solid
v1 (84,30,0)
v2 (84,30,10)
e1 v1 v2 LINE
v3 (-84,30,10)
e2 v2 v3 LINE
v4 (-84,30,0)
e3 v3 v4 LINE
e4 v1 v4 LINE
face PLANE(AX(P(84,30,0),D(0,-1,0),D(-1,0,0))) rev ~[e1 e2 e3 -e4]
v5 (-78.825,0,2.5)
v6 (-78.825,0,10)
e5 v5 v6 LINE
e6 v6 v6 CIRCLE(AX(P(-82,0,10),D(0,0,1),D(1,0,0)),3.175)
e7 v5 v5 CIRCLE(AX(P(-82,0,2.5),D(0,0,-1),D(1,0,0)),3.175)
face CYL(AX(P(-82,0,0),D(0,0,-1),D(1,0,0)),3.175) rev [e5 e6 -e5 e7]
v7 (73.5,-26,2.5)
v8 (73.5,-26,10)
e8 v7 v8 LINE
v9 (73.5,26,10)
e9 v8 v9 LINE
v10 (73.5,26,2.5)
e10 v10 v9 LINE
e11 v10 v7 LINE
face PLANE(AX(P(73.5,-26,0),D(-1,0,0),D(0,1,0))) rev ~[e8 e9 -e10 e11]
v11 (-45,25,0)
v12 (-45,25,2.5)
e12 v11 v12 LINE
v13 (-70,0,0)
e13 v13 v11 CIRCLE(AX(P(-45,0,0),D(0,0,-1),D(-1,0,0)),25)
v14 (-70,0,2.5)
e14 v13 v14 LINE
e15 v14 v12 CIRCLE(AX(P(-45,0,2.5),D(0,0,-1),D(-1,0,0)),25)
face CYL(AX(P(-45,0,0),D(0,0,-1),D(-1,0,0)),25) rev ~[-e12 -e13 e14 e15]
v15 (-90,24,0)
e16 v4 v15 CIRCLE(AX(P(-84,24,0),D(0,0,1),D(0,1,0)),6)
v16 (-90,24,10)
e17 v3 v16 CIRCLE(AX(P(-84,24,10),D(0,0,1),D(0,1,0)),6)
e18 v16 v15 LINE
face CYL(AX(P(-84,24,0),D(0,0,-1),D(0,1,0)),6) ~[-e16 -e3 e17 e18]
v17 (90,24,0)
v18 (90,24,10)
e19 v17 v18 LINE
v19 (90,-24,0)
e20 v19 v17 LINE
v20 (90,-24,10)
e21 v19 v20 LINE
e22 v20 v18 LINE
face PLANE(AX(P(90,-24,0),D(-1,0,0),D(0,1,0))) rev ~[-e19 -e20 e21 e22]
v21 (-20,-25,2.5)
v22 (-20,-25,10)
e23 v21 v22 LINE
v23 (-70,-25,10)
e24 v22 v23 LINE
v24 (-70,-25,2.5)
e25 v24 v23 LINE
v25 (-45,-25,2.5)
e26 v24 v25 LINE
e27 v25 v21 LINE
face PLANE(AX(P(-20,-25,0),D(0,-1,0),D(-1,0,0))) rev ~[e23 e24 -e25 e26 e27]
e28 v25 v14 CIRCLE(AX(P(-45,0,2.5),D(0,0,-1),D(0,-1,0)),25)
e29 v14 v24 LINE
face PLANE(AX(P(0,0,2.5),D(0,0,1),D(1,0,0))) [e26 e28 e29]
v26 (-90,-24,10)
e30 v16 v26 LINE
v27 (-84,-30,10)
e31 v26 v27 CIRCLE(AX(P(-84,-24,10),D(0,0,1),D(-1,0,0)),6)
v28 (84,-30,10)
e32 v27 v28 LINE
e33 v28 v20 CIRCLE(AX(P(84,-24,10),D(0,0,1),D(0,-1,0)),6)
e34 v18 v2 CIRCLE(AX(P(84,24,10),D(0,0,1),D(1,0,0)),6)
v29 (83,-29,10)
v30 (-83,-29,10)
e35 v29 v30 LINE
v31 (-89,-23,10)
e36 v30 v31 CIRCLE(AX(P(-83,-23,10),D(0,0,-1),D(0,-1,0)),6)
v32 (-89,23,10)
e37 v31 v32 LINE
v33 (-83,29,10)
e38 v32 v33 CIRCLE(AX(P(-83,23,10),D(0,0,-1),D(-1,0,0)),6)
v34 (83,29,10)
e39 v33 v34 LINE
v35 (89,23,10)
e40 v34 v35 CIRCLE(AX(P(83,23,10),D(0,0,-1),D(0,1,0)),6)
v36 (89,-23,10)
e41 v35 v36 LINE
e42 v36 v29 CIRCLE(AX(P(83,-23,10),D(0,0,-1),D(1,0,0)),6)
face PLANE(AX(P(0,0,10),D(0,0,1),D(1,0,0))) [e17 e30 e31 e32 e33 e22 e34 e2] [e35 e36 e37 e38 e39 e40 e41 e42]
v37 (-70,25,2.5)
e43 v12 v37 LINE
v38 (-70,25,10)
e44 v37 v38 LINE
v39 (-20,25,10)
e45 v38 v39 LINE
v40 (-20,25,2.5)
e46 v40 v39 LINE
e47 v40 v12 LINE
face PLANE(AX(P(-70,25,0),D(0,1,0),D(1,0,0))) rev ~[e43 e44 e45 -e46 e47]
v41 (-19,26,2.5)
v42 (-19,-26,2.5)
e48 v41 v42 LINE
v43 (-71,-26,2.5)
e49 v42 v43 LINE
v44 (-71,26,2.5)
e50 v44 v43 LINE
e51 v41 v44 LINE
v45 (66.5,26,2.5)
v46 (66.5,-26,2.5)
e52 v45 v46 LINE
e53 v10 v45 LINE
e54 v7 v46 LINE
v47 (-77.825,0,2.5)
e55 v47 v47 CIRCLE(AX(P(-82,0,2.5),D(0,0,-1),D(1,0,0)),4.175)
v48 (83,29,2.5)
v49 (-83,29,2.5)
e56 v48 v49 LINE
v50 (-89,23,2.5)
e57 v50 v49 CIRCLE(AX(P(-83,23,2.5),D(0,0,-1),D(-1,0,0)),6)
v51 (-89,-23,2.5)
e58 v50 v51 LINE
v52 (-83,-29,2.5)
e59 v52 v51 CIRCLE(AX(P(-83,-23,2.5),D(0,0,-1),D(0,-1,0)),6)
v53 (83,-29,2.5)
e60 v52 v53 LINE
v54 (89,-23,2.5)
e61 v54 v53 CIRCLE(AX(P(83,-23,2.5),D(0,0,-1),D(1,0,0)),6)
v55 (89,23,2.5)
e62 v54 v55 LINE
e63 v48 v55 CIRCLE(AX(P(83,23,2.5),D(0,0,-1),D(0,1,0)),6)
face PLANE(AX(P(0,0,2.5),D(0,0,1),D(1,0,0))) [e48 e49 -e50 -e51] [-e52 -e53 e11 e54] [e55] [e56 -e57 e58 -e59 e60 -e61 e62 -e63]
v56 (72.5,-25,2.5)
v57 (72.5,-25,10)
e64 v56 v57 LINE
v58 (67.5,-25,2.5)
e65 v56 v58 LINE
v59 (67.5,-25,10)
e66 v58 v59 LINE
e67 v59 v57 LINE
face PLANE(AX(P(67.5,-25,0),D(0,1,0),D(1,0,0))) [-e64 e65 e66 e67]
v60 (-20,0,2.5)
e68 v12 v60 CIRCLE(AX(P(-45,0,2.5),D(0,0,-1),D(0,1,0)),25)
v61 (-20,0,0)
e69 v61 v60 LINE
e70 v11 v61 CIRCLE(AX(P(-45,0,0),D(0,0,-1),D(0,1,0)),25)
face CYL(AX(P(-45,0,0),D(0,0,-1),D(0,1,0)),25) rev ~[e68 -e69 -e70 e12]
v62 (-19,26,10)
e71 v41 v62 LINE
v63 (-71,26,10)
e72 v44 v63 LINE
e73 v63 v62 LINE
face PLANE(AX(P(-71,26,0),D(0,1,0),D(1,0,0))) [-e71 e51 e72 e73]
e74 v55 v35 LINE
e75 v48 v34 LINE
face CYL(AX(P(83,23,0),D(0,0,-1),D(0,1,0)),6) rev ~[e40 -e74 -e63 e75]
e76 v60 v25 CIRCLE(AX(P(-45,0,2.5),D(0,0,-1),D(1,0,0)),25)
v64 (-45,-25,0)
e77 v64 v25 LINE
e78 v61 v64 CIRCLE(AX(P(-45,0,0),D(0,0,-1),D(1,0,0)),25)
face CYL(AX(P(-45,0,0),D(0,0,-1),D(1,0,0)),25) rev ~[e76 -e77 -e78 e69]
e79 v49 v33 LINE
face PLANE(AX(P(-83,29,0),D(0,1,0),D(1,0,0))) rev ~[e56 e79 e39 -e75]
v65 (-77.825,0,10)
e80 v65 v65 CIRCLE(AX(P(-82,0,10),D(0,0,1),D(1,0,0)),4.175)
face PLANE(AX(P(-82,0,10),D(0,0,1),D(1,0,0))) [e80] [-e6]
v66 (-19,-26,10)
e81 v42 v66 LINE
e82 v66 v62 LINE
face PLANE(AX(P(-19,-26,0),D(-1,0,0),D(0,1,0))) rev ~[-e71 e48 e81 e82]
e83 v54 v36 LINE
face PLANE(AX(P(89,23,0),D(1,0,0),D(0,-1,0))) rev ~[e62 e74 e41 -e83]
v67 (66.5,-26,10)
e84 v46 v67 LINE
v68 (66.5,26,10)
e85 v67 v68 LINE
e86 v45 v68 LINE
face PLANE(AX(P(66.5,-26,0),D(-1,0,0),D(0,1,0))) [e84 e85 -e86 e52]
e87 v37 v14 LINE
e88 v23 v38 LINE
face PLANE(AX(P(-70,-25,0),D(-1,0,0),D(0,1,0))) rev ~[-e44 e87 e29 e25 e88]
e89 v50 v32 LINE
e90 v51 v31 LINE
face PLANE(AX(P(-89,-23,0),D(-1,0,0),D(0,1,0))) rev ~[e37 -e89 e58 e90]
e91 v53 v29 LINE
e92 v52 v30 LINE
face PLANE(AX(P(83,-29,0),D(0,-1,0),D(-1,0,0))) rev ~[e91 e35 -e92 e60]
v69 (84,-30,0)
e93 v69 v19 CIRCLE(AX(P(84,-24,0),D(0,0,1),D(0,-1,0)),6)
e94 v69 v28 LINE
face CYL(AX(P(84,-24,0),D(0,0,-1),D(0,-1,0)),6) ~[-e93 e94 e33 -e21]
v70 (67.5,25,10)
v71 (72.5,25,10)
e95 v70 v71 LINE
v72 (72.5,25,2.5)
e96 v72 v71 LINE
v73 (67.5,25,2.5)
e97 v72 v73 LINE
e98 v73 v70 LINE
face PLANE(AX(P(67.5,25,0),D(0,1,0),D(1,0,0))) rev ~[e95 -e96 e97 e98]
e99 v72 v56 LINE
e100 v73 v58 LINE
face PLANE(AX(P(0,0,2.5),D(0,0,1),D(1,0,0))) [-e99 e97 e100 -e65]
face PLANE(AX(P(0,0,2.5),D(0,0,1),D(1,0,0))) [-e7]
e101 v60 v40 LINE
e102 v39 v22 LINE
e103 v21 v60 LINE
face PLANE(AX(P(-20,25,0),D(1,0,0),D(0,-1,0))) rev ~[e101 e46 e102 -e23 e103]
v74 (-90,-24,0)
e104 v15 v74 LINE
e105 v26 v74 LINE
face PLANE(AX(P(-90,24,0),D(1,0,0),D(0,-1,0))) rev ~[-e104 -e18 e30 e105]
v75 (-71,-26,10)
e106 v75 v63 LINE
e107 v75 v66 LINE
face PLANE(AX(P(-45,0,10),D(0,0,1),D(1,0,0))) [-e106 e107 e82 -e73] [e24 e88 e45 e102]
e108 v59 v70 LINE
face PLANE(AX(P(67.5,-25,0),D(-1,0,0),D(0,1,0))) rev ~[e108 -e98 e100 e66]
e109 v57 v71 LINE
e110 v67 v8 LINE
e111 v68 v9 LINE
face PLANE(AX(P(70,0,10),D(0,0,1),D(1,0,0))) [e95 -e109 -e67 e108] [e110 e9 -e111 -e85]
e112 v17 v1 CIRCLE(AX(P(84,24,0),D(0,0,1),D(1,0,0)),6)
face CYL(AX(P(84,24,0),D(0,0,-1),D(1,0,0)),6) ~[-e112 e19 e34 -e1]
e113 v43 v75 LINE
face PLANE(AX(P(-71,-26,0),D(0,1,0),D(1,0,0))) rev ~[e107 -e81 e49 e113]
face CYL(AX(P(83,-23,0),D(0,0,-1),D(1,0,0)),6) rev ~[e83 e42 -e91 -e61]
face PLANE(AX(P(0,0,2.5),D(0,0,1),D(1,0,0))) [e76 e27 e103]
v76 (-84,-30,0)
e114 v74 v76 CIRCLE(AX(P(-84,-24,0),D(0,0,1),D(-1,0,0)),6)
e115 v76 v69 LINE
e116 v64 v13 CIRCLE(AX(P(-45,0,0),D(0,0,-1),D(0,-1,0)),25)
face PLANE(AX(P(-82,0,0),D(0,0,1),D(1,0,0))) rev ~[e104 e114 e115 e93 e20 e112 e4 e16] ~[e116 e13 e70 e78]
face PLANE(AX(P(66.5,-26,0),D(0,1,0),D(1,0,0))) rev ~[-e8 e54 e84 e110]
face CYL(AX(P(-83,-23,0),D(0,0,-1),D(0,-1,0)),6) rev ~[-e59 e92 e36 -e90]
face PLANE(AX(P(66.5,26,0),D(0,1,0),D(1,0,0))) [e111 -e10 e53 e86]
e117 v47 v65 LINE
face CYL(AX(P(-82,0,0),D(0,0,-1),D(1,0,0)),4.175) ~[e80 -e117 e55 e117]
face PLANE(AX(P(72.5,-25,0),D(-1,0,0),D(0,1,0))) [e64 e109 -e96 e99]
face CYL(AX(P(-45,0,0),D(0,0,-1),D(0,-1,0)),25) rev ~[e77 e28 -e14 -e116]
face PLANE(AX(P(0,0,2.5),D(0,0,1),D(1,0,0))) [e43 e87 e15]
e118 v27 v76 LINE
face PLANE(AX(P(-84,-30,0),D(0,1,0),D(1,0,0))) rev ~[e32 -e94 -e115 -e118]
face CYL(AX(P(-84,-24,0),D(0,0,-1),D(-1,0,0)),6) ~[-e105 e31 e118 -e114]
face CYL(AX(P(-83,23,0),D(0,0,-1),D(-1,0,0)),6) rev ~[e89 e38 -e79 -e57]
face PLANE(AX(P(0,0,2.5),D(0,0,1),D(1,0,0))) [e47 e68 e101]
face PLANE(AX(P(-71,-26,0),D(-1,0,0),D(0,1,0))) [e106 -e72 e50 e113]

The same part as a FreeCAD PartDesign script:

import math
import FreeCAD as App
import Part
import Sketcher

V = App.Vector
Q = App.Units.Quantity

doc = App.newDocument("Part")
body = doc.addObject("PartDesign::Body", "Body")

# Sketch on XY plane
sketch1 = body.newObject("Sketcher::SketchObject", "Sketch")
sketch1.AttachmentSupport = (doc.getObject("XY_Plane"), [""])
sketch1.MapMode = "FlatFace"
sketch1.addGeometry([
    Part.LineSegment(V(-84, -30, 0), V(84, -30, 0)),  # 0
    Part.ArcOfCircle(Part.Circle(V(84, -24, 0), V(0, 0, 1), 6), math.radians(-90), math.radians(0)),  # 1
    Part.LineSegment(V(90, -24, 0), V(90, 24, 0)),  # 2
    Part.ArcOfCircle(Part.Circle(V(84, 24, 0), V(0, 0, 1), 6), math.radians(0), math.radians(90)),  # 3
    Part.LineSegment(V(84, 30, 0), V(-84, 30, 0)),  # 4
    Part.ArcOfCircle(Part.Circle(V(-84, 24, 0), V(0, 0, 1), 6), math.radians(90), math.radians(180)),  # 5
    Part.LineSegment(V(-90, 24, 0), V(-90, -24, 0)),  # 6
    Part.ArcOfCircle(Part.Circle(V(-84, -24, 0), V(0, 0, 1), 6), math.radians(180), math.radians(270)),  # 7
    Part.ArcOfCircle(Part.Circle(V(-45, 0, 0), V(0, 0, 1), 25), math.radians(-90), math.radians(0)),  # 8
    Part.ArcOfCircle(Part.Circle(V(-45, 0, 0), V(0, 0, 1), 25), math.radians(180), math.radians(270)),  # 9
    Part.ArcOfCircle(Part.Circle(V(-45, 0, 0), V(0, 0, 1), 25), math.radians(90), math.radians(180)),  # 10
    Part.ArcOfCircle(Part.Circle(V(-45, 0, 0), V(0, 0, 1), 25), math.radians(0), math.radians(90)),  # 11
], False)
sketch1.addConstraint([
    Sketcher.Constraint("Tangent", 0, 2, 1, 1),
    Sketcher.Constraint("Tangent", 1, 2, 2, 1),
    Sketcher.Constraint("Tangent", 2, 2, 3, 1),
    Sketcher.Constraint("Tangent", 3, 2, 4, 1),
    Sketcher.Constraint("Tangent", 4, 2, 5, 1),
    Sketcher.Constraint("Tangent", 5, 2, 6, 1),
    Sketcher.Constraint("Tangent", 6, 2, 7, 1),
    Sketcher.Constraint("Tangent", 7, 2, 0, 1),
    Sketcher.Constraint("Tangent", 8, 1, 9, 2),
    Sketcher.Constraint("Tangent", 9, 1, 10, 2),
    Sketcher.Constraint("Tangent", 10, 1, 11, 2),
    Sketcher.Constraint("Tangent", 11, 1, 8, 2),
    Sketcher.Constraint("Horizontal", 0),
    Sketcher.Constraint("Vertical", 2),
    Sketcher.Constraint("Horizontal", 4),
    Sketcher.Constraint("Vertical", 6),
    Sketcher.Constraint("Equal", 1, 3),
    Sketcher.Constraint("Equal", 3, 5),
    Sketcher.Constraint("Equal", 5, 7),
    Sketcher.Constraint("Equal", 8, 9),
    Sketcher.Constraint("Symmetric", 1, 3, 5, 3, -1, 1),
    Sketcher.Constraint("Symmetric", 8, 1, 10, 1, -1),
    Sketcher.Constraint("PointOnObject", 9, 1, -1),
    Sketcher.Constraint("PointOnObject", 11, 1, -1),
    Sketcher.Constraint("Vertical", 11, 3, 8, 1),
    Sketcher.Constraint("Radius", 1, Q("6 mm")),
    Sketcher.Constraint("Radius", 8, Q("25 mm")),
    Sketcher.Constraint("DistanceX", 0, 1, 0, 2, Q("168 mm")),
    Sketcher.Constraint("DistanceY", 2, 1, 2, 2, Q("48 mm")),
    Sketcher.Constraint("DistanceX", 8, 3, -1, 1, Q("45 mm")),
])
pad1 = body.newObject("PartDesign::Pad", "Pad")
pad1.Profile = sketch1
pad1.Length = 2.5

# Sketch on XY plane
sketch2 = body.newObject("Sketcher::SketchObject", "Sketch001")
sketch2.AttachmentSupport = (doc.getObject("XY_Plane"), [""])
sketch2.MapMode = "FlatFace"
sketch2.addGeometry([
    Part.LineSegment(V(-71, 26, 0), V(-71, -26, 0)),  # 0
    Part.LineSegment(V(-71, -26, 0), V(-19, -26, 0)),  # 1
    Part.LineSegment(V(-19, -26, 0), V(-19, 26, 0)),  # 2
    Part.LineSegment(V(-19, 26, 0), V(-71, 26, 0)),  # 3
    Part.LineSegment(V(-20, 25, 0), V(-20, -25, 0)),  # 4
    Part.LineSegment(V(-20, -25, 0), V(-70, -25, 0)),  # 5
    Part.LineSegment(V(-70, -25, 0), V(-70, 25, 0)),  # 6
    Part.LineSegment(V(-70, 25, 0), V(-20, 25, 0)),  # 7
    Part.LineSegment(V(66, 26, 0), V(66, -26, 0)),  # 8
    Part.LineSegment(V(66, -26, 0), V(74, -26, 0)),  # 9
    Part.LineSegment(V(74, -26, 0), V(74, 26, 0)),  # 10
    Part.LineSegment(V(74, 26, 0), V(66, 26, 0)),  # 11
    Part.LineSegment(V(72, -25, 0), V(68, -25, 0)),  # 12
    Part.LineSegment(V(68, -25, 0), V(68, 25, 0)),  # 13
    Part.LineSegment(V(68, 25, 0), V(72, 25, 0)),  # 14
    Part.LineSegment(V(72, 25, 0), V(72, -25, 0)),  # 15
], False)
sketch2.addConstraint([
    Sketcher.Constraint("Coincident", 0, 2, 1, 1),
    Sketcher.Constraint("Coincident", 1, 2, 2, 1),
    Sketcher.Constraint("Coincident", 2, 2, 3, 1),
    Sketcher.Constraint("Coincident", 3, 2, 0, 1),
    Sketcher.Constraint("Coincident", 4, 2, 5, 1),
    Sketcher.Constraint("Coincident", 5, 2, 6, 1),
    Sketcher.Constraint("Coincident", 6, 2, 7, 1),
    Sketcher.Constraint("Coincident", 7, 2, 4, 1),
    Sketcher.Constraint("Coincident", 8, 2, 9, 1),
    Sketcher.Constraint("Coincident", 9, 2, 10, 1),
    Sketcher.Constraint("Coincident", 10, 2, 11, 1),
    Sketcher.Constraint("Coincident", 11, 2, 8, 1),
    Sketcher.Constraint("Coincident", 12, 2, 13, 1),
    Sketcher.Constraint("Coincident", 13, 2, 14, 1),
    Sketcher.Constraint("Coincident", 14, 2, 15, 1),
    Sketcher.Constraint("Coincident", 15, 2, 12, 1),
    Sketcher.Constraint("Vertical", 0),
    Sketcher.Constraint("Horizontal", 1),
    Sketcher.Constraint("Vertical", 2),
    Sketcher.Constraint("Horizontal", 3),
    Sketcher.Constraint("Vertical", 4),
    Sketcher.Constraint("Horizontal", 5),
    Sketcher.Constraint("Vertical", 6),
    Sketcher.Constraint("Horizontal", 7),
    Sketcher.Constraint("Vertical", 8),
    Sketcher.Constraint("Horizontal", 9),
    Sketcher.Constraint("Vertical", 10),
    Sketcher.Constraint("Horizontal", 11),
    Sketcher.Constraint("Horizontal", 12),
    Sketcher.Constraint("Vertical", 13),
    Sketcher.Constraint("Horizontal", 14),
    Sketcher.Constraint("Vertical", 15),
    Sketcher.Constraint("Horizontal", 1, 2, 8, 2),
    Sketcher.Constraint("Horizontal", 3, 2, 10, 2),
    Sketcher.Constraint("Horizontal", 5, 2, 12, 2),
    Sketcher.Constraint("Horizontal", 7, 2, 13, 2),
    Sketcher.Constraint("Equal", 3, 0),
    Sketcher.Constraint("Equal", 7, 4),
    Sketcher.Constraint("DistanceX", 1, 1, 1, 2, Q("52 mm")),
    Sketcher.Constraint("DistanceX", 5, 2, 5, 1, Q("50 mm")),
    Sketcher.Constraint("DistanceX", 9, 1, 9, 2, Q("7 mm")),
    Sketcher.Constraint("DistanceX", 12, 2, 12, 1, Q("5 mm")),
    Sketcher.Constraint("DistanceX", 0, 2, -1, 1, Q("71 mm")),
    Sketcher.Constraint("DistanceY", 0, 2, -1, 1, Q("26 mm")),
    Sketcher.Constraint("DistanceX", 4, 2, -1, 1, Q("20 mm")),
    Sketcher.Constraint("DistanceY", 4, 2, -1, 1, Q("25 mm")),
    Sketcher.Constraint("DistanceX", 8, 2, 12, 2, Q("1 mm")),
    Sketcher.Constraint("DistanceX", -1, 1, 8, 2, Q("66.5 mm")),
])
pad2 = body.newObject("PartDesign::Pad", "Pad001")
pad2.Profile = sketch2
pad2.Length = 10

# Sketch on XY plane
sketch3 = body.newObject("Sketcher::SketchObject", "Sketch002")
sketch3.AttachmentSupport = (doc.getObject("XY_Plane"), [""])
sketch3.MapMode = "FlatFace"
sketch3.addGeometry([
    Part.Circle(V(-82, 0, 0), V(0, 0, 1), 4.2),
    Part.Circle(V(-82, 0, 0), V(0, 0, 1), 3.2),
], False)
sketch3.addConstraint([
    Sketcher.Constraint("Coincident", 1, 3, 0, 3),
    Sketcher.Constraint("PointOnObject", 0, 3, -1),
    Sketcher.Constraint("Diameter", 0, Q("8.35 mm")),
    Sketcher.Constraint("Diameter", 1, Q("6.35 mm")),
    Sketcher.Constraint("DistanceX", 0, 3, -1, 1, Q("82 mm")),
])
pad3 = body.newObject("PartDesign::Pad", "Pad002")
pad3.Profile = sketch3
pad3.Length = 10

# Sketch on XY plane
sketch4 = body.newObject("Sketcher::SketchObject", "Sketch003")
sketch4.AttachmentSupport = (doc.getObject("XY_Plane"), [""])
sketch4.MapMode = "FlatFace"
sketch4.addGeometry([
    Part.LineSegment(V(-84, -30, 0), V(84, -30, 0)),  # 0
    Part.ArcOfCircle(Part.Circle(V(84, -24, 0), V(0, 0, 1), 6), math.radians(-90), math.radians(0)),  # 1
    Part.LineSegment(V(90, -24, 0), V(90, 24, 0)),  # 2
    Part.ArcOfCircle(Part.Circle(V(84, 24, 0), V(0, 0, 1), 6), math.radians(0), math.radians(90)),  # 3
    Part.LineSegment(V(84, 30, 0), V(-84, 30, 0)),  # 4
    Part.ArcOfCircle(Part.Circle(V(-84, 24, 0), V(0, 0, 1), 6), math.radians(90), math.radians(180)),  # 5
    Part.LineSegment(V(-90, 24, 0), V(-90, -24, 0)),  # 6
    Part.ArcOfCircle(Part.Circle(V(-84, -24, 0), V(0, 0, 1), 6), math.radians(180), math.radians(270)),  # 7
    Part.LineSegment(V(89, 23, 0), V(89, -23, 0)),  # 8
    Part.ArcOfCircle(Part.Circle(V(83, -23, 0), V(0, 0, 1), 6), math.radians(-90), math.radians(0)),  # 9
    Part.LineSegment(V(83, -29, 0), V(-83, -29, 0)),  # 10
    Part.ArcOfCircle(Part.Circle(V(-83, -23, 0), V(0, 0, 1), 6), math.radians(180), math.radians(270)),  # 11
    Part.LineSegment(V(-89, -23, 0), V(-89, 23, 0)),  # 12
    Part.ArcOfCircle(Part.Circle(V(-83, 23, 0), V(0, 0, 1), 6), math.radians(90), math.radians(180)),  # 13
    Part.LineSegment(V(-83, 29, 0), V(83, 29, 0)),  # 14
    Part.ArcOfCircle(Part.Circle(V(83, 23, 0), V(0, 0, 1), 6), math.radians(0), math.radians(90)),  # 15
], False)
sketch4.addConstraint([
    Sketcher.Constraint("Tangent", 0, 2, 1, 1),
    Sketcher.Constraint("Tangent", 1, 2, 2, 1),
    Sketcher.Constraint("Tangent", 2, 2, 3, 1),
    Sketcher.Constraint("Tangent", 3, 2, 4, 1),
    Sketcher.Constraint("Tangent", 4, 2, 5, 1),
    Sketcher.Constraint("Tangent", 5, 2, 6, 1),
    Sketcher.Constraint("Tangent", 6, 2, 7, 1),
    Sketcher.Constraint("Tangent", 7, 2, 0, 1),
    Sketcher.Constraint("Tangent", 8, 2, 9, 2),
    Sketcher.Constraint("Tangent", 9, 1, 10, 1),
    Sketcher.Constraint("Tangent", 10, 2, 11, 2),
    Sketcher.Constraint("Tangent", 11, 1, 12, 1),
    Sketcher.Constraint("Tangent", 12, 2, 13, 2),
    Sketcher.Constraint("Tangent", 13, 1, 14, 1),
    Sketcher.Constraint("Tangent", 14, 2, 15, 2),
    Sketcher.Constraint("Tangent", 15, 1, 8, 1),
    Sketcher.Constraint("Horizontal", 0),
    Sketcher.Constraint("Vertical", 2),
    Sketcher.Constraint("Horizontal", 4),
    Sketcher.Constraint("Vertical", 6),
    Sketcher.Constraint("Vertical", 8),
    Sketcher.Constraint("Horizontal", 10),
    Sketcher.Constraint("Vertical", 12),
    Sketcher.Constraint("Horizontal", 14),
    Sketcher.Constraint("Equal", 1, 3),
    Sketcher.Constraint("Equal", 3, 5),
    Sketcher.Constraint("Equal", 5, 7),
    Sketcher.Constraint("Equal", 7, 9),
    Sketcher.Constraint("Equal", 9, 11),
    Sketcher.Constraint("Equal", 11, 13),
    Sketcher.Constraint("Equal", 13, 15),
    Sketcher.Constraint("Symmetric", 1, 3, 5, 3, -1, 1),
    Sketcher.Constraint("Symmetric", 9, 3, 13, 3, -1, 1),
    Sketcher.Constraint("Radius", 1, Q("6 mm")),
    Sketcher.Constraint("DistanceX", 0, 1, 0, 2, Q("168 mm")),
    Sketcher.Constraint("DistanceX", 10, 2, 10, 1, Q("166 mm")),
    Sketcher.Constraint("DistanceY", 2, 1, 2, 2, Q("48 mm")),
    Sketcher.Constraint("DistanceY", 8, 2, 8, 1, Q("46 mm")),
])
pad4 = body.newObject("PartDesign::Pad", "Pad003")
pad4.Profile = sketch4
pad4.Length = 10

doc.recompute()
